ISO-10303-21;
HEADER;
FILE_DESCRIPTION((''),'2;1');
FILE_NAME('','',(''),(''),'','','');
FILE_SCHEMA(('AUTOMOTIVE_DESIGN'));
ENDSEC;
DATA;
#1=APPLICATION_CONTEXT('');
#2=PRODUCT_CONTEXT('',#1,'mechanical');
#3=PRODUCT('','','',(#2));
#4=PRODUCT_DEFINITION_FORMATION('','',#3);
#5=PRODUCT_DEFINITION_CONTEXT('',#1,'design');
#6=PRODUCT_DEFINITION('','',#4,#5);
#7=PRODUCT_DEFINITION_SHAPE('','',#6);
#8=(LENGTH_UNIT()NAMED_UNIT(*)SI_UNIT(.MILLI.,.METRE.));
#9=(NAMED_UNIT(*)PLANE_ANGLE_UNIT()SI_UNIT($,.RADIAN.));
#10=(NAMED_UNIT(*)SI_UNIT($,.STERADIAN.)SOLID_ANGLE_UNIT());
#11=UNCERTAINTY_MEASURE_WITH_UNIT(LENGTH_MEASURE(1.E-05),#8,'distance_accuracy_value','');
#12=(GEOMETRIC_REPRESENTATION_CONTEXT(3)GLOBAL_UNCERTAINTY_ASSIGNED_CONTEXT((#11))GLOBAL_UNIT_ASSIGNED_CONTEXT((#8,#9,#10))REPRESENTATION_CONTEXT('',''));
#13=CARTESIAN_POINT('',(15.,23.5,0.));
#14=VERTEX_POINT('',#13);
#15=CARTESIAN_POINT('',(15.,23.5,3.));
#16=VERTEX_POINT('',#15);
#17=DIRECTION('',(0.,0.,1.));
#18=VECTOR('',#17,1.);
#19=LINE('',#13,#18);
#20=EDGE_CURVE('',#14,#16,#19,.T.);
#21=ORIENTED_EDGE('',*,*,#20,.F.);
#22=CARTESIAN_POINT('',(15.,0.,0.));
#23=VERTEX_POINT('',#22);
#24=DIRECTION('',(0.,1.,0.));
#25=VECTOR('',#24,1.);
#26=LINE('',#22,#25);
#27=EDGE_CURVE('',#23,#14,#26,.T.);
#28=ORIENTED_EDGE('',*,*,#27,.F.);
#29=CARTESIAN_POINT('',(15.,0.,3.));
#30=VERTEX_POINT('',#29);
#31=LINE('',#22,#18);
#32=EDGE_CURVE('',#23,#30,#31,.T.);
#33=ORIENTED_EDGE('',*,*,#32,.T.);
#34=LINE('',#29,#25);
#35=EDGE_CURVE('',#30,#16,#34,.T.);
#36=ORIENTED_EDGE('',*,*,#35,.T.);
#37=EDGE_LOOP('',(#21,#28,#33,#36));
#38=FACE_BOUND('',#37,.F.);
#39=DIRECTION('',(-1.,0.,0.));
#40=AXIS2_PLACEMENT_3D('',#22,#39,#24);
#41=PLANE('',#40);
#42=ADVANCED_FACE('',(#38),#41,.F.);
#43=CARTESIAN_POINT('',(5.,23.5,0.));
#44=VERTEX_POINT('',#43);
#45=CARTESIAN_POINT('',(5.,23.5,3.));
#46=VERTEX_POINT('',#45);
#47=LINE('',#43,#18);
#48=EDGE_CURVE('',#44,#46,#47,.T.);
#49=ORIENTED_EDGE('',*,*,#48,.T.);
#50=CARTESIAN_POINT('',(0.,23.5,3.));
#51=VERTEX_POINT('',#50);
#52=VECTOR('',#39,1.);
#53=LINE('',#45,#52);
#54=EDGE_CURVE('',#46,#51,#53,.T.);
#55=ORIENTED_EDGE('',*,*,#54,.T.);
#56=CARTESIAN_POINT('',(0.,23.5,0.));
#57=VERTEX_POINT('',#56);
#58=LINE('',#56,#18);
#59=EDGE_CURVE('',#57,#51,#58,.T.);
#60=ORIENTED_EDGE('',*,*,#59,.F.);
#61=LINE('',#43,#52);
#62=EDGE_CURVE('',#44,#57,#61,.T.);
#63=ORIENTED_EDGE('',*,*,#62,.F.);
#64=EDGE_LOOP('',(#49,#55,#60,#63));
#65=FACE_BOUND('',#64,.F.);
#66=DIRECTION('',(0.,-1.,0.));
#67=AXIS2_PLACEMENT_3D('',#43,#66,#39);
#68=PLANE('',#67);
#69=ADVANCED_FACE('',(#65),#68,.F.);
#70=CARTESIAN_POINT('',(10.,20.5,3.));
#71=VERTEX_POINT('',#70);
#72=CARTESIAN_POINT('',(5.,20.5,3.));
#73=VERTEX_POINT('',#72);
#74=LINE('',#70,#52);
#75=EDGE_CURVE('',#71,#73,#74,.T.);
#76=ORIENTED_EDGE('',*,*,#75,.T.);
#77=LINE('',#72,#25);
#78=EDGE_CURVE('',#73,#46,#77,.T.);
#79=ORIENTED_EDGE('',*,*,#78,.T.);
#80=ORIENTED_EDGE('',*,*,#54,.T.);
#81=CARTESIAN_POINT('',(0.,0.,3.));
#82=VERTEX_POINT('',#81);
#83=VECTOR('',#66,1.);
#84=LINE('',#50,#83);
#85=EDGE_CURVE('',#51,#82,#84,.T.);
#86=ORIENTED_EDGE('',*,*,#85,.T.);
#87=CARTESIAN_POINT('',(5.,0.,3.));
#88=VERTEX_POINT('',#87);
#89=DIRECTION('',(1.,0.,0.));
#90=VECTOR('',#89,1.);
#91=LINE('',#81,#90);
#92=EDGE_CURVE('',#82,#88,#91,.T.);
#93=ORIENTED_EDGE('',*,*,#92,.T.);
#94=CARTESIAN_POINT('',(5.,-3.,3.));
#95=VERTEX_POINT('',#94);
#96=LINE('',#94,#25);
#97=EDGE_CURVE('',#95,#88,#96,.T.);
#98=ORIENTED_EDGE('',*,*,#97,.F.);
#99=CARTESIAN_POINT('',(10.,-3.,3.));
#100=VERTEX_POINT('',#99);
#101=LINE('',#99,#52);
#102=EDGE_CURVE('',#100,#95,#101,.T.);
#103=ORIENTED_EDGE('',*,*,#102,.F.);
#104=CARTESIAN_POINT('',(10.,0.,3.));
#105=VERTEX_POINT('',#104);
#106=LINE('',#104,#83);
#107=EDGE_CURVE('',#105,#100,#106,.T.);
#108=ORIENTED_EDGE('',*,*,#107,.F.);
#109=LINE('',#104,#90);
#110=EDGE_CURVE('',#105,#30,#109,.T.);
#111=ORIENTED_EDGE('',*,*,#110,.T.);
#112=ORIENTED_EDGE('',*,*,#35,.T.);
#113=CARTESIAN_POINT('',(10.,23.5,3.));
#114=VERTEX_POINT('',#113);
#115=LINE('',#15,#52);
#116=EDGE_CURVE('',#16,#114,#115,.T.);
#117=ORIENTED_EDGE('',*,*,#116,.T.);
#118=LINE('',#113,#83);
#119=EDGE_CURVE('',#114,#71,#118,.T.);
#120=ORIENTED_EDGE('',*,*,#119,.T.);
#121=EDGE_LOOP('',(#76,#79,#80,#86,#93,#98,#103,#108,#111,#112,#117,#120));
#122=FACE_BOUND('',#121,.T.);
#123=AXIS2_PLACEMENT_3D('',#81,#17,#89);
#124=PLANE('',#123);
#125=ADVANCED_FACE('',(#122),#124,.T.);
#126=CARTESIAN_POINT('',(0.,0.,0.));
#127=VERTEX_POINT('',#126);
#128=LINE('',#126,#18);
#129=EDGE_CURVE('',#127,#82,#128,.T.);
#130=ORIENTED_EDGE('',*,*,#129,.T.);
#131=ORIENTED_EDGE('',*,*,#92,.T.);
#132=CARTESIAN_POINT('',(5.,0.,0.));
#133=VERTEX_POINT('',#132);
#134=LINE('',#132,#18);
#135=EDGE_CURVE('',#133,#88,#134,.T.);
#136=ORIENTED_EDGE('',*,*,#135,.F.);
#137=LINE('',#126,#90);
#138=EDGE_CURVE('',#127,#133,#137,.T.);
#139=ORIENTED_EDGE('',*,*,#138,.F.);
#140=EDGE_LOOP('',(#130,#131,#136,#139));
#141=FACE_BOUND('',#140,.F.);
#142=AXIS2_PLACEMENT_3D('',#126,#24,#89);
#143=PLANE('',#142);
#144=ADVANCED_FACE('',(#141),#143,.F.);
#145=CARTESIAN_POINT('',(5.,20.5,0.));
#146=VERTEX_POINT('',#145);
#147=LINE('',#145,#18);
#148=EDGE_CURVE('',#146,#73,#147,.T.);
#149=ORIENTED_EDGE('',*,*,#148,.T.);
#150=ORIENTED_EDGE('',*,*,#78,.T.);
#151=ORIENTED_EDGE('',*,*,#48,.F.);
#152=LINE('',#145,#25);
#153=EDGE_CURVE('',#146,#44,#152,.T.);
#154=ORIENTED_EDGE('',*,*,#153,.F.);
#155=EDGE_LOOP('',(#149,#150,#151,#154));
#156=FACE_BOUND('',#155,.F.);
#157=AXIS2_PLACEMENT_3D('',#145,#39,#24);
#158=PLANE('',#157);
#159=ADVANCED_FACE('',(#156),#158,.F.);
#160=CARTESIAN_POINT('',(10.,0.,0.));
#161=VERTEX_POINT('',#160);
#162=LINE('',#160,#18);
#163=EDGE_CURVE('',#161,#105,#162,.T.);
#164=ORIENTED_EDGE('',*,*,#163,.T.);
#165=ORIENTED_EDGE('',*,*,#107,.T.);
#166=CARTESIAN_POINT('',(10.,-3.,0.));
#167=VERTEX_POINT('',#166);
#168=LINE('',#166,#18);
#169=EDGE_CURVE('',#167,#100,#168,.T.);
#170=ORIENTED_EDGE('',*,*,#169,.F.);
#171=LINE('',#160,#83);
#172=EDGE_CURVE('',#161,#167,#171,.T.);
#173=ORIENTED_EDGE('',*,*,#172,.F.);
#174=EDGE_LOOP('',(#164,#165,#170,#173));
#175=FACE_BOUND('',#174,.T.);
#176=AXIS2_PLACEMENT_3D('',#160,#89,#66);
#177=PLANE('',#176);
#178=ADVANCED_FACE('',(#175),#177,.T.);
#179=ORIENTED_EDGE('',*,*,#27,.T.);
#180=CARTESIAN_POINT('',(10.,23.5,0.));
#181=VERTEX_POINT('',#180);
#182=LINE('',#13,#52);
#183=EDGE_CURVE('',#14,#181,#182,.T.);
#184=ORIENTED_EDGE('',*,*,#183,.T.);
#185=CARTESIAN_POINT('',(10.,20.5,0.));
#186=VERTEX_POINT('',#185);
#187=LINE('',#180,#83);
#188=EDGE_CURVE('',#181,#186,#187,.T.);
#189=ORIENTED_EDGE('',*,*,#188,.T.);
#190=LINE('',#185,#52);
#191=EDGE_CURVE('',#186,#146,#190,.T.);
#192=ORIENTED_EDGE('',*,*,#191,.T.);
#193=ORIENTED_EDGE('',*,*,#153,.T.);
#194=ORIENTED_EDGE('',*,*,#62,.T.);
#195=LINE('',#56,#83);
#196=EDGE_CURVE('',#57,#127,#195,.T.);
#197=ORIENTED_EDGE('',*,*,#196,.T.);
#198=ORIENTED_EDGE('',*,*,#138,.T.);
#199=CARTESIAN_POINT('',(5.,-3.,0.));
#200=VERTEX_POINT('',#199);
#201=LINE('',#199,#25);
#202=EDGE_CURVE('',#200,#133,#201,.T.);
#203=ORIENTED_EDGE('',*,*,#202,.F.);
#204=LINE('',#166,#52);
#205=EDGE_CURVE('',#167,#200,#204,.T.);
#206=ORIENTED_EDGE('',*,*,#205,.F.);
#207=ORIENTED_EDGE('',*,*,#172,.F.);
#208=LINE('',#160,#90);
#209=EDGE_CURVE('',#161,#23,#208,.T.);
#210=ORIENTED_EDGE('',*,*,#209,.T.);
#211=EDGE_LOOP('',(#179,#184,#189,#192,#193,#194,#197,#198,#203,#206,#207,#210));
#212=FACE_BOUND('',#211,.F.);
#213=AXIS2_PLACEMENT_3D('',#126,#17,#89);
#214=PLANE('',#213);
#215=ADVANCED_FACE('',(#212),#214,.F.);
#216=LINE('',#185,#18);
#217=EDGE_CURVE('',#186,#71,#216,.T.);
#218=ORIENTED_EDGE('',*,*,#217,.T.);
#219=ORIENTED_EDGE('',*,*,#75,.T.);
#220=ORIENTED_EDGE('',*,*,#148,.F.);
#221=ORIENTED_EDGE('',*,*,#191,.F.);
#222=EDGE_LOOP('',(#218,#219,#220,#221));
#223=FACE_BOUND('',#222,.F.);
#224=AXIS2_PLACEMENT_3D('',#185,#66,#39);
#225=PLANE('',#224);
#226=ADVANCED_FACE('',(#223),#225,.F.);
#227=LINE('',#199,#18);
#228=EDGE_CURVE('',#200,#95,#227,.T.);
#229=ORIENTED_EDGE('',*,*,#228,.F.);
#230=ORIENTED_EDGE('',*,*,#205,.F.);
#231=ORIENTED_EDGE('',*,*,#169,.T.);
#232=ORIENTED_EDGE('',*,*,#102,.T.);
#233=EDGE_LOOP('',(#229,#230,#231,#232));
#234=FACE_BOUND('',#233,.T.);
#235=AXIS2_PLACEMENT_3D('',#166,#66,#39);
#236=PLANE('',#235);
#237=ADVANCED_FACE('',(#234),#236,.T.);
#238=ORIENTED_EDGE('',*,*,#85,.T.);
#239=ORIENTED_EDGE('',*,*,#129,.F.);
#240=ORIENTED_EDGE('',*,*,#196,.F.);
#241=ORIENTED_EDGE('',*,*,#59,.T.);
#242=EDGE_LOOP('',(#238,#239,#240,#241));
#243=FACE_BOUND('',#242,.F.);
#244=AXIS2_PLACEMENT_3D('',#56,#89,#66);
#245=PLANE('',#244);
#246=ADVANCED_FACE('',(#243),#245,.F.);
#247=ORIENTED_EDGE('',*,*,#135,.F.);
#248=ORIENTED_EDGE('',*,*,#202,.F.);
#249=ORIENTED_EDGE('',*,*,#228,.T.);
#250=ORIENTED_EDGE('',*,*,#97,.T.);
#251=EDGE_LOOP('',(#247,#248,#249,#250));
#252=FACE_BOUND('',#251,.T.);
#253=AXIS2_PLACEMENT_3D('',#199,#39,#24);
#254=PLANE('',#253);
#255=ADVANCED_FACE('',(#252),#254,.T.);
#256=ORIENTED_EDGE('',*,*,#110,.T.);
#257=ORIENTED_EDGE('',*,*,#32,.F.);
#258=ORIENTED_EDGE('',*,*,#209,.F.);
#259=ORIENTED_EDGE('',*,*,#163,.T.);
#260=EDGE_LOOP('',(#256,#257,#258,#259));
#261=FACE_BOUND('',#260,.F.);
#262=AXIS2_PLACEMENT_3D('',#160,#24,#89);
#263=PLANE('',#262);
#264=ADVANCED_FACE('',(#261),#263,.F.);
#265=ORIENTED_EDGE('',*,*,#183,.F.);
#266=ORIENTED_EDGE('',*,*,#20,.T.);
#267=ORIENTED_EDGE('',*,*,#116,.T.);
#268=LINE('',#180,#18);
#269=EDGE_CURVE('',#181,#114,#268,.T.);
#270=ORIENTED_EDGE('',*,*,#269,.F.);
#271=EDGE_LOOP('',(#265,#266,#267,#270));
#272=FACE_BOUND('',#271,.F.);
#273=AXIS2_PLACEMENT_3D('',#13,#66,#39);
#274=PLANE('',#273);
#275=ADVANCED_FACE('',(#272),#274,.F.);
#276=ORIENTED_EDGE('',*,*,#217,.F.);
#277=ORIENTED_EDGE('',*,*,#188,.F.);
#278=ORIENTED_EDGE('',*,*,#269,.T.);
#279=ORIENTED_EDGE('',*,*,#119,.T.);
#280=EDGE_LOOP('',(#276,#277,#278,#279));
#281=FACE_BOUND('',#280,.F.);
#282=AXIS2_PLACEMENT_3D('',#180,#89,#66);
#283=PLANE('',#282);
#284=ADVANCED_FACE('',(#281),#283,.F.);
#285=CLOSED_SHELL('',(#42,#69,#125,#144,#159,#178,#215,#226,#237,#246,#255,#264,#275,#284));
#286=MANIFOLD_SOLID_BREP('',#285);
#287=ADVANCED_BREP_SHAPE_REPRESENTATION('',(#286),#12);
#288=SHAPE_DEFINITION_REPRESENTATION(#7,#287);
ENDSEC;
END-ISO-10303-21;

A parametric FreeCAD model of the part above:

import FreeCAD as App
import Part
import Sketcher


def add_polygon(sketch, points):
    """Adds a closed chain of lines whose ends are joined by coincident constraints."""
    first, n = sketch.GeometryCount, len(points)
    for a, b in zip(points, points[1:] + points[:1]):
        sketch.addGeometry(Part.LineSegment(App.Vector(*a, 0), App.Vector(*b, 0)), False)
    for i in range(n):
        sketch.addConstraint(Sketcher.Constraint("Coincident", first + i, 2, first + (i + 1) % n, 1))

doc = App.newDocument("Part")
params = doc.addObject("Spreadsheet::Sheet", "Params")
for row, (alias, value) in enumerate([
    ("sketch1_width", "5 mm"),
    ("sketch1_height", "3 mm"),
    ("sketch1_height2", "23.5 mm"),
    ("pad1_length", "3 mm"),
], start=1):
    params.set(f"A{row}", alias)
    params.set(f"B{row}", "=" + value)
    params.setAlias(f"B{row}", alias)

body = doc.addObject("PartDesign::Body", "Body")

sketch1 = doc.addObject("Sketcher::SketchObject", "Sketch")
body.addObject(sketch1)
sketch1.AttachmentSupport = (doc.XY_Plane, [""])
sketch1.MapMode = "FlatFace"
add_polygon(sketch1, [(10, 0), (15, 0), (15, 23.5), (10, 23.5), (10, 20.5), (5, 20.5), (5, 23.5), (0, 23.5), (0, 0), (5, 0), (5, -3), (10, -3)])
sketch1.addConstraint(Sketcher.Constraint("Horizontal", 0))
sketch1.addConstraint(Sketcher.Constraint("Vertical", 1))
sketch1.addConstraint(Sketcher.Constraint("Horizontal", 2))
sketch1.addConstraint(Sketcher.Constraint("Vertical", 3))
sketch1.addConstraint(Sketcher.Constraint("Horizontal", 4))
sketch1.addConstraint(Sketcher.Constraint("Vertical", 5))
sketch1.addConstraint(Sketcher.Constraint("Horizontal", 6))
sketch1.addConstraint(Sketcher.Constraint("Vertical", 7))
sketch1.addConstraint(Sketcher.Constraint("Horizontal", 8))
sketch1.addConstraint(Sketcher.Constraint("Vertical", 9))
sketch1.addConstraint(Sketcher.Constraint("Horizontal", 10))
sketch1.addConstraint(Sketcher.Constraint("Vertical", 11))
sketch1.addConstraint(Sketcher.Constraint("Coincident", 7, 2, -1, 1))
sketch1.addConstraint(Sketcher.Constraint("PointOnObject", 0, 2, -1))
sketch1.addConstraint(Sketcher.Constraint("Horizontal", 2, 2, 5, 2))
sketch1.addConstraint(Sketcher.Constraint("Vertical", 5, 2, 8, 2))
sketch1.addConstraint(Sketcher.Constraint("Vertical", 3, 2, 10, 2))
sketch1.addConstraint(Sketcher.Constraint("Equal", 2, 4))
sketch1.addConstraint(Sketcher.Constraint("Equal", 4, 6))
sketch1.addConstraint(Sketcher.Constraint("Equal", 5, 9))
sketch1.addConstraint(Sketcher.Constraint("DistanceX", 0, 1, 0, 2, 5.0))
sketch1.addConstraint(Sketcher.Constraint("DistanceY", 3, 2, 3, 1, 3.0))
sketch1.addConstraint(Sketcher.Constraint("DistanceY", 1, 1, 1, 2, 23.5))
sketch1.setExpression("Constraints[32]", "Params.sketch1_width")
sketch1.setExpression("Constraints[33]", "Params.sketch1_height")
sketch1.setExpression("Constraints[34]", "Params.sketch1_height2")
pad1 = doc.addObject("PartDesign::Pad", "Pad")
body.addObject(pad1)
pad1.Profile = sketch1
pad1.setExpression("Length", "Params.pad1_length")

doc.recompute()
